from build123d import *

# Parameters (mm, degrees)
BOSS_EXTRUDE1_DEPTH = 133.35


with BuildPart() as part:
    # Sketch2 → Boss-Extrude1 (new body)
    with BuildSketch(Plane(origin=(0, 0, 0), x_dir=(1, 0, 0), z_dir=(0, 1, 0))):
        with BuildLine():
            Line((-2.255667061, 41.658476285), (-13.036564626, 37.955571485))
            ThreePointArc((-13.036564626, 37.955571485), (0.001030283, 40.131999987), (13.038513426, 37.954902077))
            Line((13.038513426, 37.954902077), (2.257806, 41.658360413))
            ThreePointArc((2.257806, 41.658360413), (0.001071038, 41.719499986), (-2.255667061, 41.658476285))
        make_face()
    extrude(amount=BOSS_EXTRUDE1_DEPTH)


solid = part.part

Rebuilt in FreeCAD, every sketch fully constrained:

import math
import FreeCAD as App
import Part
import Sketcher
from FreeCAD import Vector
Q = App.Units.Quantity

doc = App.newDocument("Part")
params = doc.addObject("Spreadsheet::Sheet", "Params")
for row, (alias, value) in enumerate([
    ("sketch1_radius", "1.58 in"),
    ("pad1_length", "5.25 in"),
], start=1):
    params.set(f"A{row}", alias)
    params.set(f"B{row}", "=" + value)
    params.setAlias(f"B{row}", alias)

body = doc.addObject("PartDesign::Body", "Body")

# Sketch on XZ plane
sketch1 = doc.addObject("Sketcher::SketchObject", "Sketch")
body.addObject(sketch1)
sketch1.AttachmentSupport = (doc.XZ_Plane, [""])
sketch1.MapMode = "FlatFace"
sketch1.addGeometry(Part.LineSegment(Vector(-2.3, -41.7, 0), Vector(-13, -38, 0)), False)
sketch1.addGeometry(Part.ArcOfCircle(Part.Circle(Vector(0, 0, 0), Vector(0, 0, 1), 40.1), math.radians(-109), math.radians(-71)), False)
sketch1.addGeometry(Part.LineSegment(Vector(13, -38, 0), Vector(2.3, -41.7, 0)), False)
sketch1.addGeometry(Part.ArcOfCircle(Part.Circle(Vector(0, 0, 0), Vector(0, 0, 1), 41.7), math.radians(-93.1), math.radians(-86.9)), False)
sketch1.addConstraint(Sketcher.Constraint("Tangent", 0, 2, 1, 1))
sketch1.addConstraint(Sketcher.Constraint("Tangent", 1, 2, 2, 1))
sketch1.addConstraint(Sketcher.Constraint("Coincident", 2, 2, 3, 2))
sketch1.addConstraint(Sketcher.Constraint("Coincident", 3, 1, 0, 1))
sketch1.addConstraint(Sketcher.Constraint("Coincident", 1, 3, -1, 1))
sketch1.addConstraint(Sketcher.Constraint("Coincident", 3, 3, -1, 1))
sketch1.addConstraint(Sketcher.Constraint("Radius", 1, Q("1.58 in")))
sketch1.addConstraint(Sketcher.Constraint("Radius", 3, Q("1.6425 in")))
sketch1.addConstraint(Sketcher.Constraint("DistanceY", 0, 2, -1, 1, Q("37.955571 mm")))
sketch1.addConstraint(Sketcher.Constraint("DistanceY", 2, 2, -1, 1, Q("41.65836 mm")))
sketch1.setExpression("Constraints[6]", "Params.sketch1_radius")
pad1 = doc.addObject("PartDesign::Pad", "Pad")
body.addObject(pad1)
pad1.Profile = sketch1
pad1.setExpression("Length", "Params.pad1_length")
pad1.Reversed = True

doc.recompute()
